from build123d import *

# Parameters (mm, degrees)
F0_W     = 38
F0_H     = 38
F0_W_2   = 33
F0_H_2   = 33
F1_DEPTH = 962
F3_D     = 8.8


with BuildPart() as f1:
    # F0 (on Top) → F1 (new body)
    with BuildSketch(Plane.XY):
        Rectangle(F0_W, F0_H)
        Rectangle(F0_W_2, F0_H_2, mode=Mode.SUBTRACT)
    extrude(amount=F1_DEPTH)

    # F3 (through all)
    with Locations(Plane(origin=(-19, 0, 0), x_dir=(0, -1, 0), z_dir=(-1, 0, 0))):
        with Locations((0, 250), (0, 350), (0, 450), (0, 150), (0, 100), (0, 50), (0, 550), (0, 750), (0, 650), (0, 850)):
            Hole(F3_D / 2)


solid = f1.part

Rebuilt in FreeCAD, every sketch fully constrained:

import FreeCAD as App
import Part
import Sketcher

V = App.Vector
Q = App.Units.Quantity

doc = App.newDocument("Part")
body = doc.addObject("PartDesign::Body", "Body")

sketch1 = body.newObject("Sketcher::SketchObject", "Sketch")
sketch1.AttachmentSupport = (doc.getObject("XY_Plane"), [""])
sketch1.MapMode = "FlatFace"
sketch1.addGeometry([
    Part.LineSegment(V(-19, 19, 0), V(-19, -19, 0)),
    Part.LineSegment(V(-19, -19, 0), V(19, -19, 0)),
    Part.LineSegment(V(19, -19, 0), V(19, 19, 0)),
    Part.LineSegment(V(19, 19, 0), V(-19, 19, 0)),
    Part.LineSegment(V(16, -16, 0), V(-16, -16, 0)),
    Part.LineSegment(V(-16, -16, 0), V(-16, 16, 0)),
    Part.LineSegment(V(-16, 16, 0), V(16, 16, 0)),
    Part.LineSegment(V(16, 16, 0), V(16, -16, 0)),
], False)
sketch1.addConstraint([
    Sketcher.Constraint("Coincident", 0, 2, 1, 1),
    Sketcher.Constraint("Coincident", 1, 2, 2, 1),
    Sketcher.Constraint("Coincident", 2, 2, 3, 1),
    Sketcher.Constraint("Coincident", 3, 2, 0, 1),
    Sketcher.Constraint("Coincident", 4, 2, 5, 1),
    Sketcher.Constraint("Coincident", 5, 2, 6, 1),
    Sketcher.Constraint("Coincident", 6, 2, 7, 1),
    Sketcher.Constraint("Coincident", 7, 2, 4, 1),
    Sketcher.Constraint("Vertical", 0),
    Sketcher.Constraint("Horizontal", 1),
    Sketcher.Constraint("Vertical", 2),
    Sketcher.Constraint("Horizontal", 3),
    Sketcher.Constraint("Horizontal", 4),
    Sketcher.Constraint("Vertical", 5),
    Sketcher.Constraint("Horizontal", 6),
    Sketcher.Constraint("Vertical", 7),
    Sketcher.Constraint("Symmetric", 0, 2, 2, 2, -1, 1),
    Sketcher.Constraint("Symmetric", 4, 2, 6, 2, -1, 1),
    Sketcher.Constraint("Equal", 3, 0),
    Sketcher.Constraint("Equal", 6, 5),
    Sketcher.Constraint("DistanceX", 1, 1, 1, 2, Q("38 mm")),
    Sketcher.Constraint("DistanceX", 4, 2, 4, 1, Q("33 mm")),
])
pad1 = body.newObject("PartDesign::Pad", "Pad")
pad1.Profile = sketch1
pad1.Length = 962

sketch2 = body.newObject("Sketcher::SketchObject", "Sketch001")
sketch2.AttachmentSupport = (doc.getObject("YZ_Plane"), [""])
sketch2.MapMode = "FlatFace"
sketch2.AttachmentOffset = App.Placement(V(0, 0, -19), App.Rotation())
sketch2.addGeometry([
    Part.Circle(V(0, 250, 0), V(0, 0, 1), 4.4),
    Part.Circle(V(0, 350, 0), V(0, 0, 1), 4.4),
    Part.Circle(V(0, 450, 0), V(0, 0, 1), 4.4),
    Part.Circle(V(0, 150, 0), V(0, 0, 1), 4.4),
    Part.Circle(V(0, 100, 0), V(0, 0, 1), 4.4),
    Part.Circle(V(0, 50, 0), V(0, 0, 1), 4.4),
    Part.Circle(V(0, 550, 0), V(0, 0, 1), 4.4),
    Part.Circle(V(0, 750, 0), V(0, 0, 1), 4.4),
    Part.Circle(V(0, 650, 0), V(0, 0, 1), 4.4),
    Part.Circle(V(0, 850, 0), V(0, 0, 1), 4.4),
], False)
sketch2.addConstraint([
    Sketcher.Constraint("Equal", 0, 1),
    Sketcher.Constraint("Equal", 1, 2),
    Sketcher.Constraint("Equal", 2, 3),
    Sketcher.Constraint("Equal", 3, 4),
    Sketcher.Constraint("Equal", 4, 5),
    Sketcher.Constraint("Equal", 5, 6),
    Sketcher.Constraint("Equal", 6, 7),
    Sketcher.Constraint("Equal", 7, 8),
    Sketcher.Constraint("Equal", 8, 9),
    Sketcher.Constraint("PointOnObject", 0, 3, -2),
    Sketcher.Constraint("PointOnObject", 1, 3, -2),
    Sketcher.Constraint("PointOnObject", 2, 3, -2),
    Sketcher.Constraint("PointOnObject", 3, 3, -2),
    Sketcher.Constraint("PointOnObject", 4, 3, -2),
    Sketcher.Constraint("PointOnObject", 5, 3, -2),
    Sketcher.Constraint("PointOnObject", 6, 3, -2),
    Sketcher.Constraint("PointOnObject", 7, 3, -2),
    Sketcher.Constraint("PointOnObject", 8, 3, -2),
    Sketcher.Constraint("PointOnObject", 9, 3, -2),
    Sketcher.Constraint("Diameter", 0, Q("8.8 mm")),
    Sketcher.Constraint("DistanceY", -1, 1, 0, 3, Q("250 mm")),
    Sketcher.Constraint("DistanceY", -1, 1, 1, 3, Q("350 mm")),
    Sketcher.Constraint("DistanceY", -1, 1, 2, 3, Q("450 mm")),
    Sketcher.Constraint("DistanceY", -1, 1, 3, 3, Q("150 mm")),
    Sketcher.Constraint("DistanceY", -1, 1, 4, 3, Q("100 mm")),
    Sketcher.Constraint("DistanceY", -1, 1, 5, 3, Q("50 mm")),
    Sketcher.Constraint("DistanceY", -1, 1, 6, 3, Q("550 mm")),
    Sketcher.Constraint("DistanceY", -1, 1, 7, 3, Q("750 mm")),
    Sketcher.Constraint("DistanceY", -1, 1, 8, 3, Q("650 mm")),
    Sketcher.Constraint("DistanceY", -1, 1, 9, 3, Q("850 mm")),
])
doc.recompute()
hole = body.newObject("PartDesign::Hole", "Hole")
hole.Profile = sketch2
hole.ThreadType = "None"
hole.Diameter = 8.8
hole.DepthType = "ThroughAll"
hole.Reversed = True

doc.recompute()
